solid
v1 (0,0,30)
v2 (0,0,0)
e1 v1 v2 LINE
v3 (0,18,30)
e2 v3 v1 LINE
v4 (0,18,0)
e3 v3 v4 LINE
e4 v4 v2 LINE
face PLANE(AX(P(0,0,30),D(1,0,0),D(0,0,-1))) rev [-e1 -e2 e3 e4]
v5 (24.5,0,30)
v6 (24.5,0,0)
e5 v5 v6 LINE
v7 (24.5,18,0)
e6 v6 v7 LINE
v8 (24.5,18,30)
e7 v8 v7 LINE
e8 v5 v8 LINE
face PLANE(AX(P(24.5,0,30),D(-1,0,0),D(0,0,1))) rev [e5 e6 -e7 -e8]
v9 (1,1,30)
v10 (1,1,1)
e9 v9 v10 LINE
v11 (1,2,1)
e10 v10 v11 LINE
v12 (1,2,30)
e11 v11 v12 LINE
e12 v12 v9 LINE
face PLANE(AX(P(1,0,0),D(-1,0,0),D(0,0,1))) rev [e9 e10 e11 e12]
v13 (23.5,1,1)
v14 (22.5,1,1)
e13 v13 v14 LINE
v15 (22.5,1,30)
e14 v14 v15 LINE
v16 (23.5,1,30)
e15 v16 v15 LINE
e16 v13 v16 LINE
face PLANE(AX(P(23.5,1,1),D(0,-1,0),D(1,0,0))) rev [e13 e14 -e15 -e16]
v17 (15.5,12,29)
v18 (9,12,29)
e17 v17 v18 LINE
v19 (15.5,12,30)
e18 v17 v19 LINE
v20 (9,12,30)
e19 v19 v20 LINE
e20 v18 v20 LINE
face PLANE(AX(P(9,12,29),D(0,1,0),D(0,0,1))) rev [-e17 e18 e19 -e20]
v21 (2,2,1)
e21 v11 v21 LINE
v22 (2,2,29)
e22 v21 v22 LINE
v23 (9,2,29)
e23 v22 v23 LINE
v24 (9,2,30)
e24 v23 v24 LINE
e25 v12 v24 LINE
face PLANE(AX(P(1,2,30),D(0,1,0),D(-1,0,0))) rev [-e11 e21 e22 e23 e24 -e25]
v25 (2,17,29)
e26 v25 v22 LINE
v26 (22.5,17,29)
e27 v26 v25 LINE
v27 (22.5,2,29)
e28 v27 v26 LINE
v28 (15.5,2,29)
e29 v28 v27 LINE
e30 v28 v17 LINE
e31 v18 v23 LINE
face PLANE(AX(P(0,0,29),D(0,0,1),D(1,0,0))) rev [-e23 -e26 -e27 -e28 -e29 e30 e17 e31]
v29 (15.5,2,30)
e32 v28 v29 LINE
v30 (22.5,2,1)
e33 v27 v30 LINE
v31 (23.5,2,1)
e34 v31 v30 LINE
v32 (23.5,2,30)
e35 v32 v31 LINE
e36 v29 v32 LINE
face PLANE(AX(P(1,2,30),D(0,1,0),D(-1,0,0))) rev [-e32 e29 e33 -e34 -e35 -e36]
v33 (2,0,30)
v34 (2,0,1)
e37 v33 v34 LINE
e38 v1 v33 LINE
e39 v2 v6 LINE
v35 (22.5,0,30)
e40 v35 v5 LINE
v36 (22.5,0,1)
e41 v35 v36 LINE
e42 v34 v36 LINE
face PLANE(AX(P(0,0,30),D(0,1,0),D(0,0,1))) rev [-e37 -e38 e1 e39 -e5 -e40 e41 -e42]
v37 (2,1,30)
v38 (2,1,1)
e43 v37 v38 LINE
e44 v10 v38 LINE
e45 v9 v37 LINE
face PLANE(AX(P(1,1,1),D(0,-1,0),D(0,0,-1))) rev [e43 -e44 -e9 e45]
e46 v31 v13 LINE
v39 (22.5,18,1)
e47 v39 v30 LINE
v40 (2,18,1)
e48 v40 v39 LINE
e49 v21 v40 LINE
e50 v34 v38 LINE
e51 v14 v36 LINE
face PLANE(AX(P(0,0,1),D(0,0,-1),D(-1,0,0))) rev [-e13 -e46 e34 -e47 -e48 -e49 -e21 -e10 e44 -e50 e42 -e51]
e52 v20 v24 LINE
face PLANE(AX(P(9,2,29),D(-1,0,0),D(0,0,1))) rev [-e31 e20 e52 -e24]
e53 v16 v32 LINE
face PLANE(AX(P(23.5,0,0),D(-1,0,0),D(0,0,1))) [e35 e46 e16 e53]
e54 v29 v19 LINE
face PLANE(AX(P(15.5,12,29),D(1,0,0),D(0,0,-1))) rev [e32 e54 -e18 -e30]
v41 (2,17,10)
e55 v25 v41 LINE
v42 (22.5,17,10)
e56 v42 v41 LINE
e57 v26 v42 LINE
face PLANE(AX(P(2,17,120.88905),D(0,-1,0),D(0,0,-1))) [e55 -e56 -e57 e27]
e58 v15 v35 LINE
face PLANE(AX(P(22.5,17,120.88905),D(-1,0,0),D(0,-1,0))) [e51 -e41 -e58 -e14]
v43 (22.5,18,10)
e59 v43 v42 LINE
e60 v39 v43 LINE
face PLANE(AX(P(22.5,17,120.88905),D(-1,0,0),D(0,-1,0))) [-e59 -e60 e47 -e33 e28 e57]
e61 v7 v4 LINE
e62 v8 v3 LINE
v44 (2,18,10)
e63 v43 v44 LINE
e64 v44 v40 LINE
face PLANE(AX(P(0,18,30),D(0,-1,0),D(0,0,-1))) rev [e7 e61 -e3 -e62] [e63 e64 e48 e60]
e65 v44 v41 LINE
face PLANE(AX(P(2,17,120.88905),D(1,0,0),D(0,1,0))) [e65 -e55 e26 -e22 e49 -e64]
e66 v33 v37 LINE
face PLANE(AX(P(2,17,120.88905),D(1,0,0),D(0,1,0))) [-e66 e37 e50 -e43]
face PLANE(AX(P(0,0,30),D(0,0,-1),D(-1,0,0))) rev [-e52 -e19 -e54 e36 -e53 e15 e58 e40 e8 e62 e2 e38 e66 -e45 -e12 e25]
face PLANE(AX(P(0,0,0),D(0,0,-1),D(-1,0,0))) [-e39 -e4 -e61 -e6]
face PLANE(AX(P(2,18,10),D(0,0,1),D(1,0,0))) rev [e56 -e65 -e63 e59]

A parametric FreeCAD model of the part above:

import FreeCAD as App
import Part
import Sketcher
Q = App.Units.Quantity

doc = App.newDocument("Part")
params = doc.addObject("Spreadsheet::Sheet", "Params")
for row, (alias, value) in enumerate([
    ("sketch1_height", "18 mm"),
    ("sketch1_width", "24.5 mm"),
    ("pad1_length", "30 mm"),
    ("sketch2_width", "20.5 mm"),
    ("pocket1_length", "43.71124 mm"),
    ("pocket1_length2", "29 mm"),
    ("sketch3_width", "1 mm"),
    ("sketch3_height", "29 mm"),
    ("pocket2_length", "1 mm"),
    ("sketch4_width", "1 mm"),
    ("sketch4_height", "29 mm"),
    ("pocket3_length", "1 mm"),
    ("sketch5_height", "15 mm"),
    ("sketch5_width", "20.5 mm"),
    ("pad2_length", "1 mm"),
    ("sketch6_height", "10 mm"),
    ("sketch6_width", "6.5 mm"),
    ("pocket4_length", "1 mm"),
    ("sketch7_height", "9 mm"),
    ("sketch7_width", "20.5 mm"),
], start=1):
    params.set(f"A{row}", alias)
    params.set(f"B{row}", "=" + value)
    params.setAlias(f"B{row}", alias)

body = doc.addObject("PartDesign::Body", "Body")

# Sketch on XY plane
sketch1 = body.newObject("Sketcher::SketchObject", "Sketch")
sketch1.AttachmentSupport = (doc.getObject("XY_Plane"), [""])
sketch1.MapMode = "FlatFace"
sketch1.addGeometry(Part.LineSegment(App.Vector(0, 18, 0), App.Vector(0, 0, 0)), False)
sketch1.addGeometry(Part.LineSegment(App.Vector(0, 0, 0), App.Vector(24, 0, 0)), False)
sketch1.addGeometry(Part.LineSegment(App.Vector(24, 0, 0), App.Vector(24, 18, 0)), False)
sketch1.addGeometry(Part.LineSegment(App.Vector(24, 18, 0), App.Vector(0, 18, 0)), False)
sketch1.addConstraint(Sketcher.Constraint("Coincident", 0, 2, 1, 1))
sketch1.addConstraint(Sketcher.Constraint("Coincident", 1, 2, 2, 1))
sketch1.addConstraint(Sketcher.Constraint("Coincident", 2, 2, 3, 1))
sketch1.addConstraint(Sketcher.Constraint("Coincident", 3, 2, 0, 1))
sketch1.addConstraint(Sketcher.Constraint("Vertical", 0))
sketch1.addConstraint(Sketcher.Constraint("Horizontal", 1))
sketch1.addConstraint(Sketcher.Constraint("Vertical", 2))
sketch1.addConstraint(Sketcher.Constraint("Horizontal", 3))
sketch1.addConstraint(Sketcher.Constraint("Coincident", 0, 2, -1, 1))
sketch1.addConstraint(Sketcher.Constraint("DistanceY", 0, 2, 0, 1, Q("18 mm")))
sketch1.addConstraint(Sketcher.Constraint("DistanceX", 1, 1, 1, 2, Q("24.5 mm")))
sketch1.setExpression("Constraints[9]", "Params.sketch1_height")
sketch1.setExpression("Constraints[10]", "Params.sketch1_width")
pad1 = body.newObject("PartDesign::Pad", "Pad")
pad1.Profile = sketch1
pad1.setExpression("Length", "Params.pad1_length")

# Sketch on XY plane
sketch2 = body.newObject("Sketcher::SketchObject", "Sketch001")
sketch2.AttachmentSupport = (doc.getObject("XY_Plane"), [""])
sketch2.MapMode = "FlatFace"
sketch2.AttachmentOffset = App.Placement(App.Vector(0, 0, 30), App.Rotation())
sketch2.addGeometry(Part.LineSegment(App.Vector(22, 17, 0), App.Vector(2, 17, 0)), False)
sketch2.addGeometry(Part.LineSegment(App.Vector(2, 17, 0), App.Vector(2, -203, 0)), False)
sketch2.addGeometry(Part.LineSegment(App.Vector(2, -203, 0), App.Vector(22, -203, 0)), False)
sketch2.addGeometry(Part.LineSegment(App.Vector(22, -203, 0), App.Vector(22, 17, 0)), False)
sketch2.addConstraint(Sketcher.Constraint("Coincident", 0, 2, 1, 1))
sketch2.addConstraint(Sketcher.Constraint("Coincident", 1, 2, 2, 1))
sketch2.addConstraint(Sketcher.Constraint("Coincident", 2, 2, 3, 1))
sketch2.addConstraint(Sketcher.Constraint("Coincident", 3, 2, 0, 1))
sketch2.addConstraint(Sketcher.Constraint("Horizontal", 0))
sketch2.addConstraint(Sketcher.Constraint("Vertical", 1))
sketch2.addConstraint(Sketcher.Constraint("Horizontal", 2))
sketch2.addConstraint(Sketcher.Constraint("Vertical", 3))
sketch2.addConstraint(Sketcher.Constraint("DistanceX", 0, 2, 0, 1, Q("20.5 mm")))
sketch2.addConstraint(Sketcher.Constraint("DistanceX", -1, 1, 0, 2, Q("2 mm")))
sketch2.addConstraint(Sketcher.Constraint("DistanceY", -1, 1, 0, 2, Q("17 mm")))
sketch2.addConstraint(Sketcher.Constraint("DistanceY", 1, 2, 1, 1, Q("219.884354 mm")))
sketch2.setExpression("Constraints[8]", "Params.sketch2_width")
pocket1 = body.newObject("PartDesign::Pocket", "Pocket")
pocket1.Profile = sketch2
pocket1.Type = "TwoLengths"
pocket1.setExpression("Length", "Params.pocket1_length")
pocket1.setExpression("Length2", "Params.pocket1_length2")
pocket1.Reversed = True

# Sketch on YZ plane
sketch3 = body.newObject("Sketcher::SketchObject", "Sketch002")
sketch3.AttachmentSupport = (doc.getObject("YZ_Plane"), [""])
sketch3.MapMode = "FlatFace"
sketch3.AttachmentOffset = App.Placement(App.Vector(0, 0, 2), App.Rotation())
sketch3.addGeometry(Part.LineSegment(App.Vector(1, 30, 0), App.Vector(1, 1, 0)), False)
sketch3.addGeometry(Part.LineSegment(App.Vector(1, 1, 0), App.Vector(2, 1, 0)), False)
sketch3.addGeometry(Part.LineSegment(App.Vector(2, 1, 0), App.Vector(2, 30, 0)), False)
sketch3.addGeometry(Part.LineSegment(App.Vector(2, 30, 0), App.Vector(1, 30, 0)), False)
sketch3.addConstraint(Sketcher.Constraint("Coincident", 0, 2, 1, 1))
sketch3.addConstraint(Sketcher.Constraint("Coincident", 1, 2, 2, 1))
sketch3.addConstraint(Sketcher.Constraint("Coincident", 2, 2, 3, 1))
sketch3.addConstraint(Sketcher.Constraint("Coincident", 3, 2, 0, 1))
sketch3.addConstraint(Sketcher.Constraint("Vertical", 0))
sketch3.addConstraint(Sketcher.Constraint("Horizontal", 1))
sketch3.addConstraint(Sketcher.Constraint("Vertical", 2))
sketch3.addConstraint(Sketcher.Constraint("Horizontal", 3))
sketch3.addConstraint(Sketcher.Constraint("DistanceX", 1, 1, 1, 2, Q("1 mm")))
sketch3.addConstraint(Sketcher.Constraint("DistanceY", 0, 2, 0, 1, Q("29 mm")))
sketch3.addConstraint(Sketcher.Constraint("DistanceX", -1, 1, 0, 2, Q("1 mm")))
sketch3.addConstraint(Sketcher.Constraint("DistanceY", -1, 1, 0, 2, Q("1 mm")))
sketch3.setExpression("Constraints[8]", "Params.sketch3_width")
sketch3.setExpression("Constraints[9]", "Params.sketch3_height")
pocket2 = body.newObject("PartDesign::Pocket", "Pocket001")
pocket2.Profile = sketch3
pocket2.setExpression("Length", "Params.pocket2_length")

# Sketch on YZ plane
sketch4 = body.newObject("Sketcher::SketchObject", "Sketch003")
sketch4.AttachmentSupport = (doc.getObject("YZ_Plane"), [""])
sketch4.MapMode = "FlatFace"
sketch4.AttachmentOffset = App.Placement(App.Vector(0, 0, 22.5), App.Rotation())
sketch4.addGeometry(Part.LineSegment(App.Vector(2, 1, 0), App.Vector(1, 1, 0)), False)
sketch4.addGeometry(Part.LineSegment(App.Vector(1, 1, 0), App.Vector(1, 30, 0)), False)
sketch4.addGeometry(Part.LineSegment(App.Vector(1, 30, 0), App.Vector(2, 30, 0)), False)
sketch4.addGeometry(Part.LineSegment(App.Vector(2, 30, 0), App.Vector(2, 1, 0)), False)
sketch4.addConstraint(Sketcher.Constraint("Coincident", 0, 2, 1, 1))
sketch4.addConstraint(Sketcher.Constraint("Coincident", 1, 2, 2, 1))
sketch4.addConstraint(Sketcher.Constraint("Coincident", 2, 2, 3, 1))
sketch4.addConstraint(Sketcher.Constraint("Coincident", 3, 2, 0, 1))
sketch4.addConstraint(Sketcher.Constraint("Horizontal", 0))
sketch4.addConstraint(Sketcher.Constraint("Vertical", 1))
sketch4.addConstraint(Sketcher.Constraint("Horizontal", 2))
sketch4.addConstraint(Sketcher.Constraint("Vertical", 3))
sketch4.addConstraint(Sketcher.Constraint("DistanceX", 0, 2, 0, 1, Q("1 mm")))
sketch4.addConstraint(Sketcher.Constraint("DistanceY", 1, 1, 1, 2, Q("29 mm")))
sketch4.addConstraint(Sketcher.Constraint("DistanceX", -1, 1, 0, 2, Q("1 mm")))
sketch4.addConstraint(Sketcher.Constraint("DistanceY", -1, 1, 0, 2, Q("1 mm")))
sketch4.setExpression("Constraints[8]", "Params.sketch4_width")
sketch4.setExpression("Constraints[9]", "Params.sketch4_height")
pocket3 = body.newObject("PartDesign::Pocket", "Pocket002")
pocket3.Profile = sketch4
pocket3.setExpression("Length", "Params.pocket3_length")
pocket3.Reversed = True

# Sketch on XY plane
sketch5 = body.newObject("Sketcher::SketchObject", "Sketch004")
sketch5.AttachmentSupport = (doc.getObject("XY_Plane"), [""])
sketch5.MapMode = "FlatFace"
sketch5.AttachmentOffset = App.Placement(App.Vector(0, 0, 30), App.Rotation())
sketch5.addGeometry(Part.LineSegment(App.Vector(2, 17, 0), App.Vector(2, 2, 0)), False)
sketch5.addGeometry(Part.LineSegment(App.Vector(2, 2, 0), App.Vector(22, 2, 0)), False)
sketch5.addGeometry(Part.LineSegment(App.Vector(22, 2, 0), App.Vector(22, 17, 0)), False)
sketch5.addGeometry(Part.LineSegment(App.Vector(22, 17, 0), App.Vector(2, 17, 0)), False)
sketch5.addConstraint(Sketcher.Constraint("Coincident", 0, 2, 1, 1))
sketch5.addConstraint(Sketcher.Constraint("Coincident", 1, 2, 2, 1))
sketch5.addConstraint(Sketcher.Constraint("Coincident", 2, 2, 3, 1))
sketch5.addConstraint(Sketcher.Constraint("Coincident", 3, 2, 0, 1))
sketch5.addConstraint(Sketcher.Constraint("Vertical", 0))
sketch5.addConstraint(Sketcher.Constraint("Horizontal", 1))
sketch5.addConstraint(Sketcher.Constraint("Vertical", 2))
sketch5.addConstraint(Sketcher.Constraint("Horizontal", 3))
sketch5.addConstraint(Sketcher.Constraint("DistanceY", 0, 2, 0, 1, Q("15 mm")))
sketch5.addConstraint(Sketcher.Constraint("DistanceX", 1, 1, 1, 2, Q("20.5 mm")))
sketch5.addConstraint(Sketcher.Constraint("DistanceX", -1, 1, 0, 2, Q("2 mm")))
sketch5.addConstraint(Sketcher.Constraint("DistanceY", -1, 1, 0, 2, Q("2 mm")))
sketch5.setExpression("Constraints[8]", "Params.sketch5_height")
sketch5.setExpression("Constraints[9]", "Params.sketch5_width")
pad2 = body.newObject("PartDesign::Pad", "Pad001")
pad2.Profile = sketch5
pad2.setExpression("Length", "Params.pad2_length")
pad2.Reversed = True

# Sketch on XY plane
sketch6 = body.newObject("Sketcher::SketchObject", "Sketch005")
sketch6.AttachmentSupport = (doc.getObject("XY_Plane"), [""])
sketch6.MapMode = "FlatFace"
sketch6.AttachmentOffset = App.Placement(App.Vector(0, 0, 30), App.Rotation())
sketch6.addGeometry(Part.LineSegment(App.Vector(9, 12, 0), App.Vector(9, 2, 0)), False)
sketch6.addGeometry(Part.LineSegment(App.Vector(9, 2, 0), App.Vector(16, 2, 0)), False)
sketch6.addGeometry(Part.LineSegment(App.Vector(16, 2, 0), App.Vector(16, 12, 0)), False)
sketch6.addGeometry(Part.LineSegment(App.Vector(16, 12, 0), App.Vector(9, 12, 0)), False)
sketch6.addConstraint(Sketcher.Constraint("Coincident", 0, 2, 1, 1))
sketch6.addConstraint(Sketcher.Constraint("Coincident", 1, 2, 2, 1))
sketch6.addConstraint(Sketcher.Constraint("Coincident", 2, 2, 3, 1))
sketch6.addConstraint(Sketcher.Constraint("Coincident", 3, 2, 0, 1))
sketch6.addConstraint(Sketcher.Constraint("Vertical", 0))
sketch6.addConstraint(Sketcher.Constraint("Horizontal", 1))
sketch6.addConstraint(Sketcher.Constraint("Vertical", 2))
sketch6.addConstraint(Sketcher.Constraint("Horizontal", 3))
sketch6.addConstraint(Sketcher.Constraint("DistanceY", 0, 2, 0, 1, Q("10 mm")))
sketch6.addConstraint(Sketcher.Constraint("DistanceX", 1, 1, 1, 2, Q("6.5 mm")))
sketch6.addConstraint(Sketcher.Constraint("DistanceX", -1, 1, 0, 2, Q("9 mm")))
sketch6.addConstraint(Sketcher.Constraint("DistanceY", -1, 1, 0, 2, Q("2 mm")))
sketch6.setExpression("Constraints[8]", "Params.sketch6_height")
sketch6.setExpression("Constraints[9]", "Params.sketch6_width")
pocket4 = body.newObject("PartDesign::Pocket", "Pocket003")
pocket4.Profile = sketch6
pocket4.setExpression("Length", "Params.pocket4_length")

# Sketch on XZ plane
sketch7 = body.newObject("Sketcher::SketchObject", "Sketch006")
sketch7.AttachmentSupport = (doc.getObject("XZ_Plane"), [""])
sketch7.MapMode = "FlatFace"
sketch7.AttachmentOffset = App.Placement(App.Vector(0, 0, -17), App.Rotation())
sketch7.addGeometry(Part.LineSegment(App.Vector(22, 1, 0), App.Vector(22, 10, 0)), False)
sketch7.addGeometry(Part.LineSegment(App.Vector(22, 10, 0), App.Vector(2, 10, 0)), False)
sketch7.addGeometry(Part.LineSegment(App.Vector(2, 10, 0), App.Vector(2, 1, 0)), False)
sketch7.addGeometry(Part.LineSegment(App.Vector(2, 1, 0), App.Vector(22, 1, 0)), False)
sketch7.addConstraint(Sketcher.Constraint("Coincident", 0, 2, 1, 1))
sketch7.addConstraint(Sketcher.Constraint("Coincident", 1, 2, 2, 1))
sketch7.addConstraint(Sketcher.Constraint("Coincident", 2, 2, 3, 1))
sketch7.addConstraint(Sketcher.Constraint("Coincident", 3, 2, 0, 1))
sketch7.addConstraint(Sketcher.Constraint("Vertical", 0))
sketch7.addConstraint(Sketcher.Constraint("Horizontal", 1))
sketch7.addConstraint(Sketcher.Constraint("Vertical", 2))
sketch7.addConstraint(Sketcher.Constraint("Horizontal", 3))
sketch7.addConstraint(Sketcher.Constraint("DistanceY", 0, 1, 0, 2, Q("9 mm")))
sketch7.addConstraint(Sketcher.Constraint("DistanceX", 1, 2, 1, 1, Q("20.5 mm")))
sketch7.addConstraint(Sketcher.Constraint("DistanceY", -1, 1, 0, 2, Q("10 mm")))
sketch7.addConstraint(Sketcher.Constraint("DistanceX", -1, 1, 1, 2, Q("2 mm")))
sketch7.setExpression("Constraints[8]", "Params.sketch7_height")
sketch7.setExpression("Constraints[9]", "Params.sketch7_width")
pocket5 = body.newObject("PartDesign::Pocket", "Pocket004")
pocket5.Profile = sketch7
pocket5.Type = "ThroughAll"

doc.recompute()
